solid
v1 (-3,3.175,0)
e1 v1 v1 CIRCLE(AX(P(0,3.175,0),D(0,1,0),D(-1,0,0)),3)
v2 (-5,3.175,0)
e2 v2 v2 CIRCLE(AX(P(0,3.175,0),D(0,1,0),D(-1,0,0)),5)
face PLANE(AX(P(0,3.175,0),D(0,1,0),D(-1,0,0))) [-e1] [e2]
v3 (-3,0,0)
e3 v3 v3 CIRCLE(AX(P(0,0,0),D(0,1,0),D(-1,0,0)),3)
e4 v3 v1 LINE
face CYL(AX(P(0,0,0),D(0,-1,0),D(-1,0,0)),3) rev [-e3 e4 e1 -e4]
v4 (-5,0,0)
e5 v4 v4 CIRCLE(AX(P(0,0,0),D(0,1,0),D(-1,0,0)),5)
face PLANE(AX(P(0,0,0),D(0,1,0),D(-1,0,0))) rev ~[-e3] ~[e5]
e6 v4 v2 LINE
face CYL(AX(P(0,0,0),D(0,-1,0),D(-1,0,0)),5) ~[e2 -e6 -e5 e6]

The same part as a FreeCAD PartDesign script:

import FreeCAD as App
import Part
import Sketcher
Q = App.Units.Quantity

doc = App.newDocument("Part")
body = doc.addObject("PartDesign::Body", "Body")

# Sketch on XZ plane
sketch1 = body.newObject("Sketcher::SketchObject", "Sketch")
sketch1.AttachmentSupport = (doc.getObject("XZ_Plane"), [""])
sketch1.MapMode = "FlatFace"
sketch1.addGeometry(Part.Circle(App.Vector(0, 0, 0), App.Vector(0, 0, 1), 5), False)
sketch1.addGeometry(Part.Circle(App.Vector(0, 0, 0), App.Vector(0, 0, 1), 3), False)
sketch1.addConstraint(Sketcher.Constraint("Coincident", 0, 3, -1, 1))
sketch1.addConstraint(Sketcher.Constraint("Coincident", 1, 3, -1, 1))
sketch1.addConstraint(Sketcher.Constraint("Diameter", 1, Q("6 mm")))
sketch1.addConstraint(Sketcher.Constraint("Diameter", 0, Q("10 mm")))
pad1 = body.newObject("PartDesign::Pad", "Pad")
pad1.Profile = sketch1
pad1.Length = 3.175
pad1.Reversed = True

doc.recompute()
